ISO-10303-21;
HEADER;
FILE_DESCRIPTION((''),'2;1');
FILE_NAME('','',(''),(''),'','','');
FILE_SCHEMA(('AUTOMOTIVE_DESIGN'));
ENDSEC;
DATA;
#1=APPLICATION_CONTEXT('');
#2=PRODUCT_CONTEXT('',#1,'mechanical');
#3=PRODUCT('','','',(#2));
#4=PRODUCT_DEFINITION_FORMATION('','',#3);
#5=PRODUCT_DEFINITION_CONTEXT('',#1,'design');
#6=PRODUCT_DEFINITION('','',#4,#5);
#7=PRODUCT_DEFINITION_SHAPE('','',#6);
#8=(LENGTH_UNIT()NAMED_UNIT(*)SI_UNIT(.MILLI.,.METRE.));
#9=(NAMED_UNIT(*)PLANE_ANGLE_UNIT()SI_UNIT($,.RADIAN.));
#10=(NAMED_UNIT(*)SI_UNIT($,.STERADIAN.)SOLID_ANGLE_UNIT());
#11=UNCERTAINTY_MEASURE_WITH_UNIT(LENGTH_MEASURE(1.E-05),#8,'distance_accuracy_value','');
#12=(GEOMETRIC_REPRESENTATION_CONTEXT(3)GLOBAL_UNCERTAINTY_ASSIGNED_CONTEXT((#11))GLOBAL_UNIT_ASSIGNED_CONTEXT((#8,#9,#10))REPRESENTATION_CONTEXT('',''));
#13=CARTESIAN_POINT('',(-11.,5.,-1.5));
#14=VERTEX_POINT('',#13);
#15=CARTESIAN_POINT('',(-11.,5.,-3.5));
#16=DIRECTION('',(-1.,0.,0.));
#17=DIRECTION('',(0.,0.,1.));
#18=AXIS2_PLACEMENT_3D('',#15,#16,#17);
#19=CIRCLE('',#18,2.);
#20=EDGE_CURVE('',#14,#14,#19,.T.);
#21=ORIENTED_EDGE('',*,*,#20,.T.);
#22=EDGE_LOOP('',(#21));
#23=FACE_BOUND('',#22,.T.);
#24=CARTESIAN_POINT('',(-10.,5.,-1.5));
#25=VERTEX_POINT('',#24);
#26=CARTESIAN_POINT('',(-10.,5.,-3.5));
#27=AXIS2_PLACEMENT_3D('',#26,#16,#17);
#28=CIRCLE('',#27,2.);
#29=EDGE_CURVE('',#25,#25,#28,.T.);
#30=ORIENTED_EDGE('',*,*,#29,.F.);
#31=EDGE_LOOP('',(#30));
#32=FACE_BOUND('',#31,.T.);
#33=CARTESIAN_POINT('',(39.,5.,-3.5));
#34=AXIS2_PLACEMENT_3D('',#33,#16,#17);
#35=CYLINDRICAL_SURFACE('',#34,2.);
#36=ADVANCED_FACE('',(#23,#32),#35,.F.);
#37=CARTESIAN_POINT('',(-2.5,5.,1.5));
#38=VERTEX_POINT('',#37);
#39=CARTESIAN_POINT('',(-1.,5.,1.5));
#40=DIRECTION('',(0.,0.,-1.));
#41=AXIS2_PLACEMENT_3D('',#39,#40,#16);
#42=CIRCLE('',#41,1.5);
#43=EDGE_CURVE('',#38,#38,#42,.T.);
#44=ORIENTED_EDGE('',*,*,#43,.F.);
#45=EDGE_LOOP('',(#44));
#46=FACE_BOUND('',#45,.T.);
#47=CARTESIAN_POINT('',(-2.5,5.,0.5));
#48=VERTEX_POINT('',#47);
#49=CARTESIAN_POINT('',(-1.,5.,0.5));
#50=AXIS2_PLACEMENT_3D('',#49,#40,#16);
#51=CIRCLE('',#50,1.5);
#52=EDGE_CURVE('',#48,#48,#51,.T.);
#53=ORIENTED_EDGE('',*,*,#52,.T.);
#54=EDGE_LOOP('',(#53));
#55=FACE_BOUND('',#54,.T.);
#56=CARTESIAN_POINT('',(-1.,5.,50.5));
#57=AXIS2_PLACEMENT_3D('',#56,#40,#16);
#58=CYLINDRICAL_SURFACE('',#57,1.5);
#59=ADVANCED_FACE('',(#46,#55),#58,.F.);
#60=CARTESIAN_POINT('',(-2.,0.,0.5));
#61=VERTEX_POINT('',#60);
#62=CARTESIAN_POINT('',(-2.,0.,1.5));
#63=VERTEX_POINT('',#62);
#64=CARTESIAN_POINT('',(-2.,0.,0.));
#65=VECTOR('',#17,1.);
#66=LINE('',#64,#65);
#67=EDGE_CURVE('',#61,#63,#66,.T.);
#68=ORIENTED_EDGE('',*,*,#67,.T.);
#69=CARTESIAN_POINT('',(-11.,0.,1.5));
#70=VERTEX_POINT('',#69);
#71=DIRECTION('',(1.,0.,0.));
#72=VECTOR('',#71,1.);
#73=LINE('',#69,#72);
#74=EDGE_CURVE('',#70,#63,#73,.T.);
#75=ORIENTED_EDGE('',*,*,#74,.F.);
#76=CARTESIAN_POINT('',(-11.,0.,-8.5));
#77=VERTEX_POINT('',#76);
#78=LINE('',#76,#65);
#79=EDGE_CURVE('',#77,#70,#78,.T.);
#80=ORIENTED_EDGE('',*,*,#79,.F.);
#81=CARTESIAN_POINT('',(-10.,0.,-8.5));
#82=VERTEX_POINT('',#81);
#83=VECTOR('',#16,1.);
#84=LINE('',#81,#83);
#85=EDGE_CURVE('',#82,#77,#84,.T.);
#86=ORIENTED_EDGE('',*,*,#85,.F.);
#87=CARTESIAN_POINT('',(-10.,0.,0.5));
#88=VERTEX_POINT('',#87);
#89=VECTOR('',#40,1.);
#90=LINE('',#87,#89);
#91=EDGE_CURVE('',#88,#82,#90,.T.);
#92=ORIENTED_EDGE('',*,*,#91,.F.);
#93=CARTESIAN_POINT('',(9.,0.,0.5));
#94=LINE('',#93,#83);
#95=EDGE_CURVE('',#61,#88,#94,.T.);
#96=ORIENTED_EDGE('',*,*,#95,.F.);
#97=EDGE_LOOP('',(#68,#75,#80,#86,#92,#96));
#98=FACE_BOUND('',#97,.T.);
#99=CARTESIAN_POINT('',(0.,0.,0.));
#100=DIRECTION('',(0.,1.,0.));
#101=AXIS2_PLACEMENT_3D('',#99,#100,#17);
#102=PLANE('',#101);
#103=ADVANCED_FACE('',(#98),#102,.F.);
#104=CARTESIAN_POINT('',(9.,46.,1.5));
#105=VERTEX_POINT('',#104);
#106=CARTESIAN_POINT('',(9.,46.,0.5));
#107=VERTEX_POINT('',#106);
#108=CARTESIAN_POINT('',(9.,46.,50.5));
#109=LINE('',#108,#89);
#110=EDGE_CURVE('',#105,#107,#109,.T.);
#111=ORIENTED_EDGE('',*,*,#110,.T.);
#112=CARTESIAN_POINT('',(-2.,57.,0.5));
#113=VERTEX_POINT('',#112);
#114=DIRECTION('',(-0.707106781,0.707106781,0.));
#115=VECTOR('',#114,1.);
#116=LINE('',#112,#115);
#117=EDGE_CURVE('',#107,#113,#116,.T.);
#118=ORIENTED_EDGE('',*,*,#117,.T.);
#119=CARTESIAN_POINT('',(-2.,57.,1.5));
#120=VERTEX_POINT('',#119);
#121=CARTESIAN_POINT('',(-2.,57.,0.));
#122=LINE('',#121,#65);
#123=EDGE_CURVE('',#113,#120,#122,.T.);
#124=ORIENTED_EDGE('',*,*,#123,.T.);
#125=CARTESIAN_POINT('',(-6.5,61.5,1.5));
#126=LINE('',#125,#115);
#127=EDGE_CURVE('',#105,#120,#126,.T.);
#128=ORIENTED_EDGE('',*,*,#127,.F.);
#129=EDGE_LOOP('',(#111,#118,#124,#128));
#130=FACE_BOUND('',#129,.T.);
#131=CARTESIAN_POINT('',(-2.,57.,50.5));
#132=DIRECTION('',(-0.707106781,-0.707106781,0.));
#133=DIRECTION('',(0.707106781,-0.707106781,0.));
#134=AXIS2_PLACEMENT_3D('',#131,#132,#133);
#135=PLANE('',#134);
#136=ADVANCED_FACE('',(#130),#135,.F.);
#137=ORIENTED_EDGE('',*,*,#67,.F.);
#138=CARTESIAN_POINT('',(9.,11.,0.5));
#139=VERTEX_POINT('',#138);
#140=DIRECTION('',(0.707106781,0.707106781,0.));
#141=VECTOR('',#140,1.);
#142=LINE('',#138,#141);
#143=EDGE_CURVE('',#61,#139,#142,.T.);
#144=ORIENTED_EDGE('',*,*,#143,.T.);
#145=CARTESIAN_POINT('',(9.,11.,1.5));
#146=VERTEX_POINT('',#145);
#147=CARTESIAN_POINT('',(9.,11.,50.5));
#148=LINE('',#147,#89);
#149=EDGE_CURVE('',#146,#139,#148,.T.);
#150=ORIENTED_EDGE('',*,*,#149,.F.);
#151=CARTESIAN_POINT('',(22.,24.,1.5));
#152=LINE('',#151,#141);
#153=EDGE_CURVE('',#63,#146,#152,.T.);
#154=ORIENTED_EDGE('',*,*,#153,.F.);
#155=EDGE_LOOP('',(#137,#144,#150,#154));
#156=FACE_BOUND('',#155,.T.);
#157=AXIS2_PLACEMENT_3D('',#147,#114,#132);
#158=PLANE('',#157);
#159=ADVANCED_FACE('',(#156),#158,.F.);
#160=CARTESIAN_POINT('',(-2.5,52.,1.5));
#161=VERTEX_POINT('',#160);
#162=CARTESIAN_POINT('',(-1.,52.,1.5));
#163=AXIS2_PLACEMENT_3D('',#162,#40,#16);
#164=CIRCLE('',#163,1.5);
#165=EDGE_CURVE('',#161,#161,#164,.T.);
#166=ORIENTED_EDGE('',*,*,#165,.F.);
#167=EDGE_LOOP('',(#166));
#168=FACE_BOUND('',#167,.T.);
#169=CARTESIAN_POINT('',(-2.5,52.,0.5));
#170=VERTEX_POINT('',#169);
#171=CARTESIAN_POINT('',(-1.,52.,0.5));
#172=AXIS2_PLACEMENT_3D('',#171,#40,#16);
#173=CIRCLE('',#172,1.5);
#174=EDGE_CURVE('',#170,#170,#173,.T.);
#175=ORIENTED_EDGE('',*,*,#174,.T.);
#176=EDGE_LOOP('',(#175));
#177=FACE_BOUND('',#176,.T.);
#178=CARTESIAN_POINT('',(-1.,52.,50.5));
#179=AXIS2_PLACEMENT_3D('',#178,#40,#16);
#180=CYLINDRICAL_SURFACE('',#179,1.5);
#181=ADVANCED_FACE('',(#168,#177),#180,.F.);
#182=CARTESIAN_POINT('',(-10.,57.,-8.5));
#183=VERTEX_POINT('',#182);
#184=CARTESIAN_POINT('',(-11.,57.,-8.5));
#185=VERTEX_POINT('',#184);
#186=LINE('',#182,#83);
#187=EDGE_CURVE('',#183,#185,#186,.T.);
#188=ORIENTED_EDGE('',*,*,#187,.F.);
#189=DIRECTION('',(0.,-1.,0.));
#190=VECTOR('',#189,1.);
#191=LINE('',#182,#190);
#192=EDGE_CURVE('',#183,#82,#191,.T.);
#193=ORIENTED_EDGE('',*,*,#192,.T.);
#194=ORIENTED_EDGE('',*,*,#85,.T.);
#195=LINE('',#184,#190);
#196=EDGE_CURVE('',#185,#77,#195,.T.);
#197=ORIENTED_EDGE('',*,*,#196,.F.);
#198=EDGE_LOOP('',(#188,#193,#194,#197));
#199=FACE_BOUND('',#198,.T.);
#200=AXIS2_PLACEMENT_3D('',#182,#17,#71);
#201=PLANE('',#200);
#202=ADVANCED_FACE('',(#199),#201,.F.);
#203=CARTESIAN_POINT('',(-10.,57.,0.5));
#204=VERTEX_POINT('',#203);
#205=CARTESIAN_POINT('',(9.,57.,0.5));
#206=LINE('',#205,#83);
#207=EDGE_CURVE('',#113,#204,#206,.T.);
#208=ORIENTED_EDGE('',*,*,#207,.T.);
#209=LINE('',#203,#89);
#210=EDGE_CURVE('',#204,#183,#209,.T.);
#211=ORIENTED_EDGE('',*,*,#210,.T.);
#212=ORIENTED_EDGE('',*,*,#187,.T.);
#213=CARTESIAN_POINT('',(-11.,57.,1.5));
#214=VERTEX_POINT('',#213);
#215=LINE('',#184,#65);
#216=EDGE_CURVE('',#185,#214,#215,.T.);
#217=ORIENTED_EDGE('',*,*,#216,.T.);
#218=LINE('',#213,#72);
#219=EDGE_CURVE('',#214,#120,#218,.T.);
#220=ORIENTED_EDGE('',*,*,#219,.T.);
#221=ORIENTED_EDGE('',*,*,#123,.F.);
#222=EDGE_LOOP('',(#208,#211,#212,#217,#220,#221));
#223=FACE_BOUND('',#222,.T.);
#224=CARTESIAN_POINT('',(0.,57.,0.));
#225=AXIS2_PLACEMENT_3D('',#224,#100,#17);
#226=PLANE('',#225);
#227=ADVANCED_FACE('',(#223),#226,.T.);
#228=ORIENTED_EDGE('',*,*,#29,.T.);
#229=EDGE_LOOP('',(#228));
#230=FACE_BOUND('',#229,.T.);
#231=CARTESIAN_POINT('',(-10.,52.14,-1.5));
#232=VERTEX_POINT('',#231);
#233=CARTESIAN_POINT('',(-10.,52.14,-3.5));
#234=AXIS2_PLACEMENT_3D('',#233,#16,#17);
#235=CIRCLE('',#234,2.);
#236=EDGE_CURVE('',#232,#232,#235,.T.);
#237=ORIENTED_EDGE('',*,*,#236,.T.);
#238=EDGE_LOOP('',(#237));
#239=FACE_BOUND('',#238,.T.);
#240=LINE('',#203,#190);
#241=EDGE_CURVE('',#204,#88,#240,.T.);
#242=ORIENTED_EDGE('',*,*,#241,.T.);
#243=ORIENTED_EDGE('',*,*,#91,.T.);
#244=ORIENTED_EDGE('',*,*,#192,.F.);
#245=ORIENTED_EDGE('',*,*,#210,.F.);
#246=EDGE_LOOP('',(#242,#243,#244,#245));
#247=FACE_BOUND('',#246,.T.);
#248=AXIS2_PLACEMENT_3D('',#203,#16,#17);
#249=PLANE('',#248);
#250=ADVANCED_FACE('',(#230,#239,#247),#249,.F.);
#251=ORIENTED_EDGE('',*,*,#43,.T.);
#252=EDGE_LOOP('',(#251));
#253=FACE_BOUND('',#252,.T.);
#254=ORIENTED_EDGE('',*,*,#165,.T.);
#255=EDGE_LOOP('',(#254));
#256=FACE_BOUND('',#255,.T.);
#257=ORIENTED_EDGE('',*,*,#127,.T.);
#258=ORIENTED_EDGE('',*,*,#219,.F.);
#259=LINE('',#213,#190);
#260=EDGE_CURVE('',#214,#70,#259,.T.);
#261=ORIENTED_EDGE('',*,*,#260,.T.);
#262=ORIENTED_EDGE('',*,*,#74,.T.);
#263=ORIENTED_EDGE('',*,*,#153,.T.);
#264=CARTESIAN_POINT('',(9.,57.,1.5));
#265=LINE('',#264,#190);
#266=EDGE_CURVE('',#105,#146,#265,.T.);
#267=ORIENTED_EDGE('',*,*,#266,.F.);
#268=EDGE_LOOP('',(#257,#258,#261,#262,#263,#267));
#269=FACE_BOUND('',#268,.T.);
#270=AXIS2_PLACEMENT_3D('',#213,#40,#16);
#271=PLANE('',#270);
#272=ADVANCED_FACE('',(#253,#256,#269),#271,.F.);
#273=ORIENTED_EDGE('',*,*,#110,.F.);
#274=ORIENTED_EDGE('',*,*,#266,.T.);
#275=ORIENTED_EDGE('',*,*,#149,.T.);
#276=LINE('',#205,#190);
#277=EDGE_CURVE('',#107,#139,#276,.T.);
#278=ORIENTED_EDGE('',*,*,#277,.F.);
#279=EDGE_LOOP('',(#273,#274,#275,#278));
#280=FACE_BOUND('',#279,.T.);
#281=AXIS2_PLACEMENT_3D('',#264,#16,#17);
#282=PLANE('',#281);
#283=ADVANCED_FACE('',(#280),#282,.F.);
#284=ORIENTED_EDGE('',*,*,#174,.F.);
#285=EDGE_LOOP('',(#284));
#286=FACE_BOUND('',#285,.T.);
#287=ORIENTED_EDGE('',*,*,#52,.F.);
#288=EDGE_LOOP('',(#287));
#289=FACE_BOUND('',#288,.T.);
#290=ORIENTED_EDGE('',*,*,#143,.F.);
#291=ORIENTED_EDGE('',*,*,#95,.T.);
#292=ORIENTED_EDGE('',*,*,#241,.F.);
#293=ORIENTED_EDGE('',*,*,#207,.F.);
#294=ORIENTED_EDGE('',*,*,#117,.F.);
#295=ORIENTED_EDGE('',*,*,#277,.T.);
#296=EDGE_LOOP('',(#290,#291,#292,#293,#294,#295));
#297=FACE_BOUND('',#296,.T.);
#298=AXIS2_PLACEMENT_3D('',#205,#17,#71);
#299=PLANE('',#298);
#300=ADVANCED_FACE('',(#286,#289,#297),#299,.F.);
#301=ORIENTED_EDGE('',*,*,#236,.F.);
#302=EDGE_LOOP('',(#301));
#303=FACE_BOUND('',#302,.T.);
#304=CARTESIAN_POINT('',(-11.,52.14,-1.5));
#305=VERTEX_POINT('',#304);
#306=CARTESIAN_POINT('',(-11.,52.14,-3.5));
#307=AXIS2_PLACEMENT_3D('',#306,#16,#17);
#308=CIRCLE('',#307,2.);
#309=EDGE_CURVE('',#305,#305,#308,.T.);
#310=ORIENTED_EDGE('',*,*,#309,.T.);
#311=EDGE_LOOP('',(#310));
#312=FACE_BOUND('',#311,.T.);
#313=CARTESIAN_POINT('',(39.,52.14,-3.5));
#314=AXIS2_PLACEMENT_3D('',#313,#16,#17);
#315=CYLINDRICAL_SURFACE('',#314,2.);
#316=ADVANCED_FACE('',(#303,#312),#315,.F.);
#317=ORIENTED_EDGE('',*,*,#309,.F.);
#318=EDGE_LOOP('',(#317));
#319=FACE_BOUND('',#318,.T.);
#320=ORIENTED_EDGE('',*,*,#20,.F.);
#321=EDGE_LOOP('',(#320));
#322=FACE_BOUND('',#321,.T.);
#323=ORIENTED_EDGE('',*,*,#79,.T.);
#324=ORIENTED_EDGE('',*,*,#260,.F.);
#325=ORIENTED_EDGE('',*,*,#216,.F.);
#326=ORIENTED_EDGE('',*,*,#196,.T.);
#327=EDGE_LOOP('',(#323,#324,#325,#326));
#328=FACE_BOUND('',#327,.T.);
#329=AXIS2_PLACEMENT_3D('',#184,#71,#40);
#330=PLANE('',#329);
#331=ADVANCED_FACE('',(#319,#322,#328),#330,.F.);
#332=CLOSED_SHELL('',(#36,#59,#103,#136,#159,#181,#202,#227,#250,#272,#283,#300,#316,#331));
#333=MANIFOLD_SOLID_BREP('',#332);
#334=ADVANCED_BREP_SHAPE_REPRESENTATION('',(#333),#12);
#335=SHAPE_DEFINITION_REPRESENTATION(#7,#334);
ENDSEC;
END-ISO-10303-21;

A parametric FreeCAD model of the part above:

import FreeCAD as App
import Part
import Sketcher
from FreeCAD import Vector
Q = App.Units.Quantity


def add_polygon(sketch, points):
    """Adds a closed chain of lines whose ends are joined by coincident constraints."""
    first, n = sketch.GeometryCount, len(points)
    for a, b in zip(points, points[1:] + points[:1]):
        sketch.addGeometry(Part.LineSegment(App.Vector(*a, 0), App.Vector(*b, 0)), False)
    for i in range(n):
        sketch.addConstraint(Sketcher.Constraint("Coincident", first + i, 2, first + (i + 1) % n, 1))

doc = App.newDocument("Part")
params = doc.addObject("Spreadsheet::Sheet", "Params")
for row, (alias, value) in enumerate([
    ("sketch1_width", "20 mm"),
    ("sketch1_width2", "19 mm"),
    ("sketch1_height", "10 mm"),
    ("pad1_length", "57 mm"),
    ("sketch2_diameter", "4 mm"),
    ("pocket1_length", "50 mm"),
    ("sketch3_diameter", "3 mm"),
    ("sketch3_width", "11 mm"),
    ("pocket2_length", "50 mm"),
], start=1):
    params.set(f"A{row}", alias)
    params.set(f"B{row}", "=" + value)
    params.setAlias(f"B{row}", alias)

body = doc.addObject("PartDesign::Body", "Body")

# Sketch on XZ plane
sketch1 = body.newObject("Sketcher::SketchObject", "Sketch")
sketch1.AttachmentSupport = (doc.getObject("XZ_Plane"), [""])
sketch1.MapMode = "FlatFace"
add_polygon(sketch1, [(-11, -8.5), (-11, 1.5), (9, 1.5), (9, 0.5), (-10, 0.5), (-10, -8.5)])  # lines 0-5
sketch1.addConstraint([
    Sketcher.Constraint("Vertical", 0),
    Sketcher.Constraint("Horizontal", 1),
    Sketcher.Constraint("Vertical", 2),
    Sketcher.Constraint("Horizontal", 3),
    Sketcher.Constraint("Vertical", 4),
    Sketcher.Constraint("Horizontal", 5),
    Sketcher.Constraint("Equal", 5, 2),
    Sketcher.Constraint("DistanceX", 1, 1, 1, 2, Q("20 mm")),
    Sketcher.Constraint("DistanceX", 3, 2, 3, 1, Q("19 mm")),
    Sketcher.Constraint("DistanceY", 0, 1, 0, 2, Q("10 mm")),
    Sketcher.Constraint("DistanceX", 0, 2, -1, 1, Q("11 mm")),
    Sketcher.Constraint("DistanceY", -1, 1, 0, 2, Q("1.5 mm")),
])
sketch1.setExpression("Constraints[13]", "Params.sketch1_width")
sketch1.setExpression("Constraints[14]", "Params.sketch1_width2")
sketch1.setExpression("Constraints[15]", "Params.sketch1_height")
pad1 = body.newObject("PartDesign::Pad", "Pad")
pad1.Profile = sketch1
pad1.setExpression("Length", "Params.pad1_length")
pad1.Reversed = True

# Sketch on YZ plane
sketch2 = body.newObject("Sketcher::SketchObject", "Sketch001")
sketch2.AttachmentSupport = (doc.getObject("YZ_Plane"), [""])
sketch2.MapMode = "FlatFace"
sketch2.AttachmentOffset = App.Placement(Vector(0, 0, -11), App.Rotation())
sketch2.addGeometry([
    Part.Circle(Vector(52.1, -3.5, 0), Vector(0, 0, 1), 2),
    Part.Circle(Vector(5, -3.5, 0), Vector(0, 0, 1), 2),
], False)
sketch2.addConstraint([
    Sketcher.Constraint("Equal", 0, 1),
    Sketcher.Constraint("Horizontal", 0, 3, 1, 3),
    Sketcher.Constraint("Diameter", 0, Q("4 mm")),
    Sketcher.Constraint("DistanceX", -1, 1, 1, 3, Q("5 mm")),
    Sketcher.Constraint("DistanceY", 0, 3, -1, 1, Q("3.5 mm")),
    Sketcher.Constraint("DistanceX", -1, 1, 0, 3, Q("52.14 mm")),
])
sketch2.setExpression("Constraints[2]", "Params.sketch2_diameter")
pocket1 = body.newObject("PartDesign::Pocket", "Pocket")
pocket1.Profile = sketch2
pocket1.setExpression("Length", "Params.pocket1_length")
pocket1.Reversed = True

# Sketch on XY plane
sketch3 = body.newObject("Sketcher::SketchObject", "Sketch002")
sketch3.AttachmentSupport = (doc.getObject("XY_Plane"), [""])
sketch3.MapMode = "FlatFace"
sketch3.AttachmentOffset = App.Placement(Vector(0, 0, 0.5), App.Rotation())
sketch3.addGeometry(Part.Circle(Vector(-1, 52, 0), Vector(0, 0, 1), 1.5), False)  # 0
sketch3.addGeometry(Part.Circle(Vector(-1, 5, 0), Vector(0, 0, 1), 1.5), False)  # 1
add_polygon(sketch3, [(9, 46), (-2, 57), (9, 57)])  # lines 2-4
add_polygon(sketch3, [(9, 11), (9, 0), (-2, 0)])  # lines 5-7
sketch3.addConstraint([
    Sketcher.Constraint("Horizontal", 3),
    Sketcher.Constraint("Vertical", 4),
    Sketcher.Constraint("Vertical", 5),
    Sketcher.Constraint("Horizontal", 6),
    Sketcher.Constraint("Equal", 0, 1),
    Sketcher.Constraint("PointOnObject", 5, 2, -1),
    Sketcher.Constraint("Perpendicular", 2, 7),
    Sketcher.Constraint("Vertical", 0, 3, 1, 3),
    Sketcher.Constraint("Vertical", 4, 2, 5, 2),
    Sketcher.Constraint("Vertical", 2, 2, 6, 2),
    Sketcher.Constraint("Equal", 6, 4),
    Sketcher.Constraint("Diameter", 0, Q("3 mm")),
    Sketcher.Constraint("DistanceX", 3, 1, 3, 2, Q("11 mm")),
    Sketcher.Constraint("DistanceX", 0, 3, -1, 1, Q("1 mm")),
    Sketcher.Constraint("DistanceY", -1, 1, 0, 3, Q("52 mm")),
    Sketcher.Constraint("DistanceY", -1, 1, 1, 3, Q("5 mm")),
    Sketcher.Constraint("DistanceX", 2, 2, -1, 1, Q("2 mm")),
    Sketcher.Constraint("DistanceY", -1, 1, 2, 2, Q("57 mm")),
])
sketch3.setExpression("Constraints[17]", "Params.sketch3_diameter")
sketch3.setExpression("Constraints[18]", "Params.sketch3_width")
pocket2 = body.newObject("PartDesign::Pocket", "Pocket001")
pocket2.Profile = sketch3
pocket2.setExpression("Length", "Params.pocket2_length")
pocket2.Reversed = True

doc.recompute()
